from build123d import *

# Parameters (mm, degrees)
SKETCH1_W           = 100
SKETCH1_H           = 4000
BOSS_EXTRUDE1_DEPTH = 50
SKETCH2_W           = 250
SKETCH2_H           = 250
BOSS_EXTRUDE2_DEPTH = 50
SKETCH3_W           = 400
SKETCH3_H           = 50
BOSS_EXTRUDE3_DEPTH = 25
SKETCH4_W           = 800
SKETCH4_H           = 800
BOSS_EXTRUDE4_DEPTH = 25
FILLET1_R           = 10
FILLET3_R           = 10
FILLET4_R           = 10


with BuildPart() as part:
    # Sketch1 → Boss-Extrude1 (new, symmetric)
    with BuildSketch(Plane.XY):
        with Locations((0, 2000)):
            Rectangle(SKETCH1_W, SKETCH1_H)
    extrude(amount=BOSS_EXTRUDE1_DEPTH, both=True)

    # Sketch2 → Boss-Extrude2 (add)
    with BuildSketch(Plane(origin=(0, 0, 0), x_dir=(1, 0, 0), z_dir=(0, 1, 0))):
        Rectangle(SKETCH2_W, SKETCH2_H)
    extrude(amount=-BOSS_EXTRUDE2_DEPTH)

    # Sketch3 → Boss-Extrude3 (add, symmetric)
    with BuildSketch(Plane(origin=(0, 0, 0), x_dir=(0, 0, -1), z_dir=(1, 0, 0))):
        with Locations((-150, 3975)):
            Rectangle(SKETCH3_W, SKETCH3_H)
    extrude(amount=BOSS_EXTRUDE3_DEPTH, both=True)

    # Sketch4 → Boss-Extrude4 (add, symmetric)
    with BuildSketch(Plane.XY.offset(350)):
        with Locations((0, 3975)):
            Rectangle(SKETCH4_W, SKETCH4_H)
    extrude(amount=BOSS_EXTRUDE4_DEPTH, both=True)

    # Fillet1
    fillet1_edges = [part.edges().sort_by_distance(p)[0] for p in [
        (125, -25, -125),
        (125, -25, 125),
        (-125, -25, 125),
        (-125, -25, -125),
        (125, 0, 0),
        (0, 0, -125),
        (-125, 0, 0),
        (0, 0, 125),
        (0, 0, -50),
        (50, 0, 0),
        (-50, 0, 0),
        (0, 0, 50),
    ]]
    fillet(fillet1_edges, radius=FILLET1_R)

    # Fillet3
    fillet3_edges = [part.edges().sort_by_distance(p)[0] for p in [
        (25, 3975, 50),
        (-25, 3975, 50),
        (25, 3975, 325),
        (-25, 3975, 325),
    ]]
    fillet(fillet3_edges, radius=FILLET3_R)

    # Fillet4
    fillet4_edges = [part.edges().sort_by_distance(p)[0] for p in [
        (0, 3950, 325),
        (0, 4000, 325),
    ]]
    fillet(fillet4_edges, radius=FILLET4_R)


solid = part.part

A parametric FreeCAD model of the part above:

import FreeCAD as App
import Part
import Sketcher
from FreeCAD import Vector


def edges_at(feature, points):
    """Names of the edges that pass closest to the given points."""
    edges = feature.Shape.Edges
    near = lambda p: min(range(len(edges)), key=lambda i: edges[i].distToShape(Part.Vertex(*p))[0])
    return sorted({f"Edge{near(p) + 1}" for p in points})


def add_polygon(sketch, points):
    """Adds a closed chain of lines whose ends are joined by coincident constraints."""
    first, n = sketch.GeometryCount, len(points)
    for a, b in zip(points, points[1:] + points[:1]):
        sketch.addGeometry(Part.LineSegment(App.Vector(*a, 0), App.Vector(*b, 0)), False)
    for i in range(n):
        sketch.addConstraint(Sketcher.Constraint("Coincident", first + i, 2, first + (i + 1) % n, 1))

doc = App.newDocument("Part")
body = doc.addObject("PartDesign::Body", "Body")

# Sketch on XY plane
sketch1 = body.newObject("Sketcher::SketchObject", "Sketch")
sketch1.AttachmentSupport = (doc.getObject("XY_Plane"), [""])
sketch1.MapMode = "FlatFace"
add_polygon(sketch1, [(-50, 4000), (-50, 0), (50, 0), (50, 4000)])  # lines 0-3
sketch1.addConstraint(Sketcher.Constraint("Vertical", 0))
sketch1.addConstraint(Sketcher.Constraint("Horizontal", 1))
sketch1.addConstraint(Sketcher.Constraint("Vertical", 2))
sketch1.addConstraint(Sketcher.Constraint("Horizontal", 3))
sketch1.addConstraint(Sketcher.Constraint("Symmetric", 0, 2, 1, 2, -1, 1))
sketch1.addConstraint(Sketcher.Constraint("DistanceX", 1, 1, 1, 2, 100.0))
sketch1.addConstraint(Sketcher.Constraint("DistanceY", 0, 2, 0, 1, 4000.0))
pad1 = body.newObject("PartDesign::Pad", "Pad")
pad1.Profile = sketch1
pad1.Length = 100
pad1.Midplane = True

# Sketch on XZ plane
sketch2 = body.newObject("Sketcher::SketchObject", "Sketch001")
sketch2.AttachmentSupport = (doc.getObject("XZ_Plane"), [""])
sketch2.MapMode = "FlatFace"
add_polygon(sketch2, [(-125, -125), (-125, 125), (125, 125), (125, -125)])  # lines 0-3
sketch2.addConstraint(Sketcher.Constraint("Vertical", 0))
sketch2.addConstraint(Sketcher.Constraint("Horizontal", 1))
sketch2.addConstraint(Sketcher.Constraint("Vertical", 2))
sketch2.addConstraint(Sketcher.Constraint("Horizontal", 3))
sketch2.addConstraint(Sketcher.Constraint("Symmetric", 0, 2, 2, 2, -1, 1))
sketch2.addConstraint(Sketcher.Constraint("Equal", 3, 0))
sketch2.addConstraint(Sketcher.Constraint("DistanceX", 1, 1, 1, 2, 250.0))
pad2 = body.newObject("PartDesign::Pad", "Pad001")
pad2.Profile = sketch2
pad2.Length = 50

# Sketch on YZ plane
sketch3 = body.newObject("Sketcher::SketchObject", "Sketch002")
sketch3.AttachmentSupport = (doc.getObject("YZ_Plane"), [""])
sketch3.MapMode = "FlatFace"
add_polygon(sketch3, [(4000, 350), (3950, 350), (3950, -50), (4000, -50)])  # lines 0-3
sketch3.addConstraint(Sketcher.Constraint("Horizontal", 0))
sketch3.addConstraint(Sketcher.Constraint("Vertical", 1))
sketch3.addConstraint(Sketcher.Constraint("Horizontal", 2))
sketch3.addConstraint(Sketcher.Constraint("Vertical", 3))
sketch3.addConstraint(Sketcher.Constraint("DistanceX", 0, 2, 0, 1, 50.0))
sketch3.addConstraint(Sketcher.Constraint("DistanceY", 1, 2, 1, 1, 400.0))
sketch3.addConstraint(Sketcher.Constraint("DistanceX", -1, 1, 0, 2, 3950.0))
sketch3.addConstraint(Sketcher.Constraint("DistanceY", -1, 1, 0, 2, 350.0))
pad3 = body.newObject("PartDesign::Pad", "Pad002")
pad3.Profile = sketch3
pad3.Length = 50
pad3.Midplane = True

# Sketch on XY plane
sketch4 = body.newObject("Sketcher::SketchObject", "Sketch003")
sketch4.AttachmentSupport = (doc.getObject("XY_Plane"), [""])
sketch4.MapMode = "FlatFace"
sketch4.AttachmentOffset = App.Placement(Vector(0, 0, 350), App.Rotation())
add_polygon(sketch4, [(-400, 4375), (-400, 3575), (400, 3575), (400, 4375)])  # lines 0-3
sketch4.addConstraint(Sketcher.Constraint("Vertical", 0))
sketch4.addConstraint(Sketcher.Constraint("Horizontal", 1))
sketch4.addConstraint(Sketcher.Constraint("Vertical", 2))
sketch4.addConstraint(Sketcher.Constraint("Horizontal", 3))
sketch4.addConstraint(Sketcher.Constraint("Equal", 3, 0))
sketch4.addConstraint(Sketcher.Constraint("DistanceX", 1, 1, 1, 2, 800.0))
sketch4.addConstraint(Sketcher.Constraint("DistanceX", 0, 2, -1, 1, 400.0))
sketch4.addConstraint(Sketcher.Constraint("DistanceY", -1, 1, 0, 2, 3575.0))
pad4 = body.newObject("PartDesign::Pad", "Pad003")
pad4.Profile = sketch4
pad4.Length = 50
pad4.Midplane = True
doc.recompute()

fillet = body.newObject("PartDesign::Fillet", "Fillet")
fillet.Base = (pad4, edges_at(pad4, [
    (125, -25, -125),
    (125, -25, 125),
    (-125, -25, 125),
    (-125, -25, -125),
    (125, 0, 0),
    (0, 0, -125),
    (-125, 0, 0),
    (0, 0, 125),
    (0, 0, -50),
    (50, 0, 0),
    (-50, 0, 0),
    (0, 0, 50),
]))
fillet.Radius = 10
doc.recompute()

fillet2 = body.newObject("PartDesign::Fillet", "Fillet001")
fillet2.Base = (fillet, edges_at(fillet, [
    (25, 3975, 50),
    (-25, 3975, 50),
    (25, 3975, 325),
    (-25, 3975, 325),
]))
fillet2.Radius = 10
doc.recompute()

fillet3 = body.newObject("PartDesign::Fillet", "Fillet002")
fillet3.Base = (fillet2, edges_at(fillet2, [(0, 3950, 325), (0, 4000, 325)]))
fillet3.Radius = 10

doc.recompute()
